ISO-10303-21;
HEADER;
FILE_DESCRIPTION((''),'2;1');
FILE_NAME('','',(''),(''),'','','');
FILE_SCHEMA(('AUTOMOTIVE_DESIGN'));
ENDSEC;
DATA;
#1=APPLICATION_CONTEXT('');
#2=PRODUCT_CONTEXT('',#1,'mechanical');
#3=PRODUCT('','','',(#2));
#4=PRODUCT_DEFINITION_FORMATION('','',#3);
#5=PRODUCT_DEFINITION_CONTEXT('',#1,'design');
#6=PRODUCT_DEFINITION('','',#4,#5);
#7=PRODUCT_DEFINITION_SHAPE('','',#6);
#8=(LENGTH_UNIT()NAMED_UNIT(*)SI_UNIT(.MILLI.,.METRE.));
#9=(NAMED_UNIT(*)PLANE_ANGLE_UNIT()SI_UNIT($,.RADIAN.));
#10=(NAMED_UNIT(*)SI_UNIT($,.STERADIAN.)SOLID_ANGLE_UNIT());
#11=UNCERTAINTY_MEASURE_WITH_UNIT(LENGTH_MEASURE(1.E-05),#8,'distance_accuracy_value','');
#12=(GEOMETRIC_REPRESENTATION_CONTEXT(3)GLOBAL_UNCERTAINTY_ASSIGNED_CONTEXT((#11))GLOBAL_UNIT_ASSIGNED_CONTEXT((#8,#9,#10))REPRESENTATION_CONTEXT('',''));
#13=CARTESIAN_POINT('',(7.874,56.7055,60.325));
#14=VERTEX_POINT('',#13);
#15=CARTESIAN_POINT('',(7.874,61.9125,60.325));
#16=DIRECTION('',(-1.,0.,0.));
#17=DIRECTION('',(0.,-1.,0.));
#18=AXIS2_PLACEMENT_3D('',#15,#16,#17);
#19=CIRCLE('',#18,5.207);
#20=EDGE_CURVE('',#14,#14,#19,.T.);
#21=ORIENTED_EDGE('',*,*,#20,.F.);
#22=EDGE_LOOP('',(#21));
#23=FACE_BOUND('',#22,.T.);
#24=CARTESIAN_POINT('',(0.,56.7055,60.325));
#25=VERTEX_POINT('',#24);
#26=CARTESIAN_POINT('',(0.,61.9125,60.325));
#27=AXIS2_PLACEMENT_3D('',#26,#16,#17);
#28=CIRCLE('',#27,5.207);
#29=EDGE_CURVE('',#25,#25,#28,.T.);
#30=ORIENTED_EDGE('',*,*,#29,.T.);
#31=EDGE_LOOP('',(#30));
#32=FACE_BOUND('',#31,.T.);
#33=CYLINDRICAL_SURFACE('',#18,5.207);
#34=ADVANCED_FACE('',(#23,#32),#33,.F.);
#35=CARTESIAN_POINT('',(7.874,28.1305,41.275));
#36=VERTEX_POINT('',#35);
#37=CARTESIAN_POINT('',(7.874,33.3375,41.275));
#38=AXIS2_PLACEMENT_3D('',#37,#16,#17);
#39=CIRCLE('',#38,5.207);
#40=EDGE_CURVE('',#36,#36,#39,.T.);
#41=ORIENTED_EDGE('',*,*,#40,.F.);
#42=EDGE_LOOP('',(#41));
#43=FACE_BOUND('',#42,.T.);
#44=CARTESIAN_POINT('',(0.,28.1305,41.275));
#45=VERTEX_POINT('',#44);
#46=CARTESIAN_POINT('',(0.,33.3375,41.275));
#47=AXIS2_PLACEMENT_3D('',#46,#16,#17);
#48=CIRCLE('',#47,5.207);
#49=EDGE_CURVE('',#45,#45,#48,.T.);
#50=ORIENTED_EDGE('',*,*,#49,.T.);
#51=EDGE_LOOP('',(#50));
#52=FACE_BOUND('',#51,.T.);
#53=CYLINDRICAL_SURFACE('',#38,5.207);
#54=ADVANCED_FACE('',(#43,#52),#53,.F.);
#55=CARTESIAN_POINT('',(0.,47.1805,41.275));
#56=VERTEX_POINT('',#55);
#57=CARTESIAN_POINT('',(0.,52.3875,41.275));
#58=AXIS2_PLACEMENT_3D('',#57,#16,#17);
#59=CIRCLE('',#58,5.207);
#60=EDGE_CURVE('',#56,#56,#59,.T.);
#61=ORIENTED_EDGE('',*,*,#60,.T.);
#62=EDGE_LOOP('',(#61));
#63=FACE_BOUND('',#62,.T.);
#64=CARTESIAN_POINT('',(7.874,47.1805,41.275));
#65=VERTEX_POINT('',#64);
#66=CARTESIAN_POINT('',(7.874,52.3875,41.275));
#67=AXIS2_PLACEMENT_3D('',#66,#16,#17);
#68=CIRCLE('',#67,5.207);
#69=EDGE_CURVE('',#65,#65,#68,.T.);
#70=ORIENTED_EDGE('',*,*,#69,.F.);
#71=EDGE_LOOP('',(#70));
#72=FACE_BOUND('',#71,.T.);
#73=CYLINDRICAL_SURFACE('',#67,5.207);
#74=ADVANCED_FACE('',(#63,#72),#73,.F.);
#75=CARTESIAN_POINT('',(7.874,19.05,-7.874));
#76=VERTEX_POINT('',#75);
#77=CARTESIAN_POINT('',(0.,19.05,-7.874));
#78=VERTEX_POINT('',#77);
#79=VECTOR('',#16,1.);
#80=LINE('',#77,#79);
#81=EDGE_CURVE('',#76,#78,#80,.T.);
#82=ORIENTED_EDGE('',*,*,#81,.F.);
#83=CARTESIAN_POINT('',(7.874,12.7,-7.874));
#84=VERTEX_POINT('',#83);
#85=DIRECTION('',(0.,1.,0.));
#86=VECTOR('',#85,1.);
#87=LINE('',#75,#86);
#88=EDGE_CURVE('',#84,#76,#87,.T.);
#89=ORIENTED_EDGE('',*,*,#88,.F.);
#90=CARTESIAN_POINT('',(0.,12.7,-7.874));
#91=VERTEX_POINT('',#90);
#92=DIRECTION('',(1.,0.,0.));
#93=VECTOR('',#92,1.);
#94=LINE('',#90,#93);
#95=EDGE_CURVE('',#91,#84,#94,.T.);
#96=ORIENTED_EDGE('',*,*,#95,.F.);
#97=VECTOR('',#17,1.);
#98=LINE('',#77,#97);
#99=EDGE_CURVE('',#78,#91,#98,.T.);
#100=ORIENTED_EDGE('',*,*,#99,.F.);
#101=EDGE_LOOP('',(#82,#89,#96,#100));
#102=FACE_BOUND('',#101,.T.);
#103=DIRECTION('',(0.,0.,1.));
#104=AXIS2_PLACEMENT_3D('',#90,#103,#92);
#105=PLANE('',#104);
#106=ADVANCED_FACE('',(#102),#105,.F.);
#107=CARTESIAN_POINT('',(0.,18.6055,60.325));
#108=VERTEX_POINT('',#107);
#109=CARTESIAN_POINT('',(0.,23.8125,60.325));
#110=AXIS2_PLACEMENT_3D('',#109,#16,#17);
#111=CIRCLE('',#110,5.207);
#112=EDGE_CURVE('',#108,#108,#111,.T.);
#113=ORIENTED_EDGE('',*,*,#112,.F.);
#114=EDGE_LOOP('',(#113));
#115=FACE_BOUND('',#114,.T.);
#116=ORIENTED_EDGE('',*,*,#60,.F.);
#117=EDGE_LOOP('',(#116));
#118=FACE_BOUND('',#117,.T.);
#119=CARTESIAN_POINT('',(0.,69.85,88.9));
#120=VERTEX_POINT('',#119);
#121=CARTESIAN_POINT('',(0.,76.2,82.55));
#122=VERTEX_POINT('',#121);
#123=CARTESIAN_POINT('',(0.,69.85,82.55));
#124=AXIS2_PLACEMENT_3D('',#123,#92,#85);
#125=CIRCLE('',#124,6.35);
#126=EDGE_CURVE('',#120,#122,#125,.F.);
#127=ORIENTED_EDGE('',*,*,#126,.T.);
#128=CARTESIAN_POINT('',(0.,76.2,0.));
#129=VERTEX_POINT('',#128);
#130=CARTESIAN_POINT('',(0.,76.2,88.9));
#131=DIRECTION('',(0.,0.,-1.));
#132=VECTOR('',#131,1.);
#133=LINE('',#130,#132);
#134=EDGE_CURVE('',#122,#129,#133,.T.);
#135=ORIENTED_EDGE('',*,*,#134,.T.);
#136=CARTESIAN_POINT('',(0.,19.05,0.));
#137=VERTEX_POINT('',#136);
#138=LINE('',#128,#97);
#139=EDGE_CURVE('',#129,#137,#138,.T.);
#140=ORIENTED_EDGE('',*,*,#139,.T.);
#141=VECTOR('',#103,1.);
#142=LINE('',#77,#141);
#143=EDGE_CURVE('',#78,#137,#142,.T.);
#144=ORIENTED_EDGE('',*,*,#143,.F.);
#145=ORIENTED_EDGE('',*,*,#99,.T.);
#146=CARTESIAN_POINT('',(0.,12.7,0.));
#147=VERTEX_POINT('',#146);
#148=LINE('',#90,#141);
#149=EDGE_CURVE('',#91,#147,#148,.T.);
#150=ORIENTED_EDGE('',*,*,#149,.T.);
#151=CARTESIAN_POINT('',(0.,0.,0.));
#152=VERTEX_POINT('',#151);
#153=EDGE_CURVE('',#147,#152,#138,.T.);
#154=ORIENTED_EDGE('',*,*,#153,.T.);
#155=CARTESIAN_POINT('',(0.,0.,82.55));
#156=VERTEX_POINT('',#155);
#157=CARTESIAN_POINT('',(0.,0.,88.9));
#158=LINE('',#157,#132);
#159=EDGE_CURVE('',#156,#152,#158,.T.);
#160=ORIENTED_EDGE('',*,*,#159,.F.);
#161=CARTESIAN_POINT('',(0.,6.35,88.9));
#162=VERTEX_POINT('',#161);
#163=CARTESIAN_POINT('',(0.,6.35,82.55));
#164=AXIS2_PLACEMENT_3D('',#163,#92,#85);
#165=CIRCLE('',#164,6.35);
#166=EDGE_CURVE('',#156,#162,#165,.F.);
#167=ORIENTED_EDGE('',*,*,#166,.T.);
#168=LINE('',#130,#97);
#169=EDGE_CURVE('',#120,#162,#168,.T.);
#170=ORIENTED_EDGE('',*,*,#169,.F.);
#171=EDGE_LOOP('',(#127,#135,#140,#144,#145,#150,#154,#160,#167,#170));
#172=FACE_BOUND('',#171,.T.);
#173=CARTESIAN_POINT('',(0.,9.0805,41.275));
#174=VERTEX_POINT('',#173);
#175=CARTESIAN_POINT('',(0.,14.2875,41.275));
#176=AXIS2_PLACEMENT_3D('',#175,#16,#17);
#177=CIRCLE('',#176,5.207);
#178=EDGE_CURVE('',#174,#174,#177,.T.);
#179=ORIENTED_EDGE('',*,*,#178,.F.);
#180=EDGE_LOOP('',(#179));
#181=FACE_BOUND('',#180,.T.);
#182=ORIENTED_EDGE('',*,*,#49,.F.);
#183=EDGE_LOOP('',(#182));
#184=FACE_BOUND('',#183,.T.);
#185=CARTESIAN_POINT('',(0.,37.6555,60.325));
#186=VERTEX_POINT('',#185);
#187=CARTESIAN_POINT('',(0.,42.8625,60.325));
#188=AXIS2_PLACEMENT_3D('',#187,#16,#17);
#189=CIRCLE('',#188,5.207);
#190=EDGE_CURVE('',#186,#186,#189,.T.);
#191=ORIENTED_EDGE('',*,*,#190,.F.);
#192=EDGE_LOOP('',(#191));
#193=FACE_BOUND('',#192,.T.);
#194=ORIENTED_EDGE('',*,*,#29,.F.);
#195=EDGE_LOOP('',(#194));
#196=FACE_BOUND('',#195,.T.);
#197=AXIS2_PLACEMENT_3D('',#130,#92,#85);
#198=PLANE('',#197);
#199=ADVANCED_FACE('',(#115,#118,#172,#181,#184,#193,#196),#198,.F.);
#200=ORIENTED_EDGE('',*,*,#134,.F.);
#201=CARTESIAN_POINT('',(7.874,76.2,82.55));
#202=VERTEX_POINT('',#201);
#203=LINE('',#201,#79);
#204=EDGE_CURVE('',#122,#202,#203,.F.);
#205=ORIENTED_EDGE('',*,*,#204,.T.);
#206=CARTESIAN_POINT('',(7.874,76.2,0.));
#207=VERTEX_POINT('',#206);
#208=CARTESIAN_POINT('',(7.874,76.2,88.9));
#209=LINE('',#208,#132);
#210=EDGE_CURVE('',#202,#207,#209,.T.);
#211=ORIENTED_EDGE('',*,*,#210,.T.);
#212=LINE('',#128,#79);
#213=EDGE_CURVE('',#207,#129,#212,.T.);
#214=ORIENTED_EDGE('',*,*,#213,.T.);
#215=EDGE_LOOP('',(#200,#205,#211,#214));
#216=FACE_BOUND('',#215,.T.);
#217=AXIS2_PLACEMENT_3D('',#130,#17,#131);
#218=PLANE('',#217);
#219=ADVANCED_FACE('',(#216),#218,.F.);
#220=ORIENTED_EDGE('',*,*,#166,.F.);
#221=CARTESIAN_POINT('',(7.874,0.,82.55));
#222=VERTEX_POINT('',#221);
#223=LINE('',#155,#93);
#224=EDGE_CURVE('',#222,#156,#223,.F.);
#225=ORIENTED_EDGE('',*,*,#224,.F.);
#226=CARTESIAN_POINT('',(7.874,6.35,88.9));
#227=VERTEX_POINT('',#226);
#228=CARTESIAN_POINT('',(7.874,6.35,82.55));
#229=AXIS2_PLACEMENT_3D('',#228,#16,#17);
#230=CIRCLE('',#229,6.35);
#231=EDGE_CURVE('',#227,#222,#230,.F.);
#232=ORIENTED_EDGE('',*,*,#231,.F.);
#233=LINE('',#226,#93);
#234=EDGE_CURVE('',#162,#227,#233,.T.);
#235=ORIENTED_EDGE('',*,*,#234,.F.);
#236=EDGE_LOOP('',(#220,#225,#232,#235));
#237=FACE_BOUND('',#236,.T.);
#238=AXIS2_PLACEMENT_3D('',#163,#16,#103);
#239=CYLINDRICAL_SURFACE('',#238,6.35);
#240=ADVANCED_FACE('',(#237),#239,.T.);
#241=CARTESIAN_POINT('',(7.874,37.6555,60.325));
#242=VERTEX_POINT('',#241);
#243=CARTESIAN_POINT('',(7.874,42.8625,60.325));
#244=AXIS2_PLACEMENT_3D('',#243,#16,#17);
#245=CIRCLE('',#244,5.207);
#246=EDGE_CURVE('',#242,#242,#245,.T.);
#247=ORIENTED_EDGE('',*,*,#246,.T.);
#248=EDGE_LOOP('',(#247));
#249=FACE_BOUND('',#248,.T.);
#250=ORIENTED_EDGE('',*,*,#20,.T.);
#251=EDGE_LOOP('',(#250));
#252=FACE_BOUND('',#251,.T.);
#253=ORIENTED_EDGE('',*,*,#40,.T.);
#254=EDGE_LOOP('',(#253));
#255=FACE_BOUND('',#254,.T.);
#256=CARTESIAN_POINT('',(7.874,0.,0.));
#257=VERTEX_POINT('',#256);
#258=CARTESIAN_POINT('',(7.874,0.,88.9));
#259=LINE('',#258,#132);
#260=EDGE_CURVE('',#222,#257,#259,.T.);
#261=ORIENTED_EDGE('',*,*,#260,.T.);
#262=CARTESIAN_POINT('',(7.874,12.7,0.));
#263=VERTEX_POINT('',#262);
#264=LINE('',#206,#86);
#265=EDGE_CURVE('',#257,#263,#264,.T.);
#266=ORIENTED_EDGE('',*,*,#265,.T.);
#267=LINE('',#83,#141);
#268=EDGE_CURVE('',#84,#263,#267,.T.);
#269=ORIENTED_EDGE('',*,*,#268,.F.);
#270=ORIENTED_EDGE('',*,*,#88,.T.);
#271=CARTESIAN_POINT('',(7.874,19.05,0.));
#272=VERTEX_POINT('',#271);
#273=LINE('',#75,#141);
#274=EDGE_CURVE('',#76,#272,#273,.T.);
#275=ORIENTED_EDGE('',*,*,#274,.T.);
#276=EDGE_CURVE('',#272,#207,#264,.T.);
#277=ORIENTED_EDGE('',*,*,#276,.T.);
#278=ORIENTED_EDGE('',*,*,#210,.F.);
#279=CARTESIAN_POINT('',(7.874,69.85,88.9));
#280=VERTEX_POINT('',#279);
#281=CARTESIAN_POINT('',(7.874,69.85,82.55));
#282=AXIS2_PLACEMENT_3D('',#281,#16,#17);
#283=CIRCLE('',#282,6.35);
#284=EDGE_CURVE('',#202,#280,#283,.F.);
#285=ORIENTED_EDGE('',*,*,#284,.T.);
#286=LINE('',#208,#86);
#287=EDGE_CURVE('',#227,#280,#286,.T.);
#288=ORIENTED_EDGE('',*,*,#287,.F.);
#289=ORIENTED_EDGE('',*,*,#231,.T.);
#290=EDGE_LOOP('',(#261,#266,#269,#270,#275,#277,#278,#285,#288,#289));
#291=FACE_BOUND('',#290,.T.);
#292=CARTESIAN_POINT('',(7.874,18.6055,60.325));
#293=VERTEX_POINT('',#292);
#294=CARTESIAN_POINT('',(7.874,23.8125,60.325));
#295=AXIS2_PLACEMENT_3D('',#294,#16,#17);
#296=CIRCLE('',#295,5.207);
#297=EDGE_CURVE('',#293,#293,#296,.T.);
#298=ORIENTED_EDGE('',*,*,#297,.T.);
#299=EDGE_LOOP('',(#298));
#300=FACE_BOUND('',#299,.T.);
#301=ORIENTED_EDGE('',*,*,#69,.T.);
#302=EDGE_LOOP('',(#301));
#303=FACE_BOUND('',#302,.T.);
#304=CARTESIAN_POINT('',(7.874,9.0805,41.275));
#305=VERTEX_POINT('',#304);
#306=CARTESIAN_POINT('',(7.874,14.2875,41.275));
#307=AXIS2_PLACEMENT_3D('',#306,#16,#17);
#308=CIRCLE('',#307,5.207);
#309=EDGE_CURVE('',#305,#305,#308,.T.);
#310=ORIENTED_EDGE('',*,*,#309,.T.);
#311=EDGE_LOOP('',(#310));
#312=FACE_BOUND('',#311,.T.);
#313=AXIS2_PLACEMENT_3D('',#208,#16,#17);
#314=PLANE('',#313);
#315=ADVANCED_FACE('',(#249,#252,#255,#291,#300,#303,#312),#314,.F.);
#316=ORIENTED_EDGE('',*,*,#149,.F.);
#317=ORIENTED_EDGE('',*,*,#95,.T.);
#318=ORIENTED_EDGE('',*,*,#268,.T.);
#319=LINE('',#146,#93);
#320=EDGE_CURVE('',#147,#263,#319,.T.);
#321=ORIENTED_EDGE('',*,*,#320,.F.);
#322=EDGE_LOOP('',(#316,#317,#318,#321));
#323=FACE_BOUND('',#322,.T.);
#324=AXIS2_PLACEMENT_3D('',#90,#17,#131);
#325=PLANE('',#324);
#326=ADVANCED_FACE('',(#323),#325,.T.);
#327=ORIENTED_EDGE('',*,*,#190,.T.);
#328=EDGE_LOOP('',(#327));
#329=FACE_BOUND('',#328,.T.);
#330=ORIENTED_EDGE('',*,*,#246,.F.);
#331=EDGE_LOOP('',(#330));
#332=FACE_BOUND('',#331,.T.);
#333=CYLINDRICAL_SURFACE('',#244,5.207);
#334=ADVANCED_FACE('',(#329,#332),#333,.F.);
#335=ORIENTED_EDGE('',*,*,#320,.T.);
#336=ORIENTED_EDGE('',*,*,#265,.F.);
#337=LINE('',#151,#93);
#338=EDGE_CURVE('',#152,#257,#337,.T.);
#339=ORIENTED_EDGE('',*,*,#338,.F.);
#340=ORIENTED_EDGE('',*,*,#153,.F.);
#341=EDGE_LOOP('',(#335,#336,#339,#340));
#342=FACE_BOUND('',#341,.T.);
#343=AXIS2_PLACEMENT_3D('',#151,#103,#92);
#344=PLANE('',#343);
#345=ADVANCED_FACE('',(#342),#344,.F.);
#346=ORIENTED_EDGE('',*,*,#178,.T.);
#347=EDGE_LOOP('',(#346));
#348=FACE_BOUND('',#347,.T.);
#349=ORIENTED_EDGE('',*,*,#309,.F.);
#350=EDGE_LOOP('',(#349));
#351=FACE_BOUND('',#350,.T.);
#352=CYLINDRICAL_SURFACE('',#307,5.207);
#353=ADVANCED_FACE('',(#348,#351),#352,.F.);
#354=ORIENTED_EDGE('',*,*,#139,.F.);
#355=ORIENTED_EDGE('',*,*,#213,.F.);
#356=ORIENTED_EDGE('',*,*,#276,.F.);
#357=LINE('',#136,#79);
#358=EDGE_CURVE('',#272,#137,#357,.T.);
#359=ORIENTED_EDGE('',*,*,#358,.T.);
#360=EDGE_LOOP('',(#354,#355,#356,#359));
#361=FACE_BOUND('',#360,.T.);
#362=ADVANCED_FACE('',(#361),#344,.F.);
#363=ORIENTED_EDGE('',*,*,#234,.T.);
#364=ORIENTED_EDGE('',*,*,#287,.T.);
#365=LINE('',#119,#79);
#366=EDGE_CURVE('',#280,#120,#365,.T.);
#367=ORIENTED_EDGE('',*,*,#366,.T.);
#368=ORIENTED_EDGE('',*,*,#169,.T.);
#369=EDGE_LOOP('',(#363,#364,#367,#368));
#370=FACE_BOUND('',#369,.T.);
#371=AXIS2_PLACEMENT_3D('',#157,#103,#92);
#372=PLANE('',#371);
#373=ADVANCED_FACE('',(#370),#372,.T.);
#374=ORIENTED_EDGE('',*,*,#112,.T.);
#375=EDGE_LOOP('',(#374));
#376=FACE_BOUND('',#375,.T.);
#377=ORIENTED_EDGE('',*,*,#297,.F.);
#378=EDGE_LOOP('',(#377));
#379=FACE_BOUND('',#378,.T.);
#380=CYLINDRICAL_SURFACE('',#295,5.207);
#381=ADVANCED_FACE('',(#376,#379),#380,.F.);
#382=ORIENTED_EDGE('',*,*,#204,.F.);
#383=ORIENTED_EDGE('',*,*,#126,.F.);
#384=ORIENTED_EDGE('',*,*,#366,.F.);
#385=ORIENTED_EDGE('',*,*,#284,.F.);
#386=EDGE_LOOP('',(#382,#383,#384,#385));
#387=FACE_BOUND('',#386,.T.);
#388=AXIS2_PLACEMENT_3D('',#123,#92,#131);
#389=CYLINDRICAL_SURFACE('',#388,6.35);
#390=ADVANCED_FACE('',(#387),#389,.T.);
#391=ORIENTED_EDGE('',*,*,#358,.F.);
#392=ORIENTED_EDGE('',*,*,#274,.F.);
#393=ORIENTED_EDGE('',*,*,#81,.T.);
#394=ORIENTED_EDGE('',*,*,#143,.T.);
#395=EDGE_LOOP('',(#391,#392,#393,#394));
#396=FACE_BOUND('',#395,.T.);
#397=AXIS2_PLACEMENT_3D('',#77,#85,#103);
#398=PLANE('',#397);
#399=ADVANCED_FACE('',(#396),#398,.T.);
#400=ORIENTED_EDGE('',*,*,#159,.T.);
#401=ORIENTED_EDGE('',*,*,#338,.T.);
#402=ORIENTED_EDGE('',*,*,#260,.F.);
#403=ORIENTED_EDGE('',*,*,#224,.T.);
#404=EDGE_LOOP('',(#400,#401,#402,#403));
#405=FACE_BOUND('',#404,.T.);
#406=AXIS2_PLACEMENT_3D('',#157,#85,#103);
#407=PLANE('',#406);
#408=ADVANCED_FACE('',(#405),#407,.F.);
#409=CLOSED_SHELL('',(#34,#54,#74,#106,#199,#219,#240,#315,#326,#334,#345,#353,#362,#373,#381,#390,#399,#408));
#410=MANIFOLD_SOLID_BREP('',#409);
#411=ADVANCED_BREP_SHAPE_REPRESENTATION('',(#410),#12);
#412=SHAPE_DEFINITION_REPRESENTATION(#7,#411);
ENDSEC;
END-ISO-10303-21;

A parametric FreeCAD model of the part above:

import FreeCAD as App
import Part
import Sketcher

V = App.Vector
Q = App.Units.Quantity


def edges_at(feature, points):
    """Names of the edges that pass closest to the given points."""
    edges = feature.Shape.Edges
    near = lambda p: min(range(len(edges)), key=lambda i: edges[i].distToShape(Part.Vertex(*p))[0])
    return sorted({f"Edge{near(p) + 1}" for p in points})

doc = App.newDocument("Part")
params = doc.addObject("Spreadsheet::Sheet", "Params")
for row, (alias, value) in enumerate([
    ("sketch1_height", "3 in"),
    ("sketch1_width", "0.31 in"),
    ("pad1_length", "3.5 in"),
    ("sketch2_diameter", "0.41 in"),
    ("fillet_radius", "0.25 in"),
    ("sketch3_width", "0.31 in"),
    ("sketch3_height", "0.25 in"),
    ("pad2_length", "0.31 in"),
], start=1):
    params.set(f"A{row}", alias)
    params.set(f"B{row}", "=" + value)
    params.setAlias(f"B{row}", alias)

body = doc.addObject("PartDesign::Body", "Body")

sketch1 = doc.addObject("Sketcher::SketchObject", "Sketch")
body.addObject(sketch1)
sketch1.AttachmentSupport = (doc.XY_Plane, [""])
sketch1.MapMode = "FlatFace"
sketch1.addGeometry([
    Part.LineSegment(V(0, 76.2, 0), V(0, 0, 0)),
    Part.LineSegment(V(0, 0, 0), V(7.874, 0, 0)),
    Part.LineSegment(V(7.874, 0, 0), V(7.874, 76.2, 0)),
    Part.LineSegment(V(7.874, 76.2, 0), V(0, 76.2, 0)),
], False)
sketch1.addConstraint([
    Sketcher.Constraint("Coincident", 0, 2, 1, 1),
    Sketcher.Constraint("Coincident", 1, 2, 2, 1),
    Sketcher.Constraint("Coincident", 2, 2, 3, 1),
    Sketcher.Constraint("Coincident", 3, 2, 0, 1),
    Sketcher.Constraint("Vertical", 0),
    Sketcher.Constraint("Horizontal", 1),
    Sketcher.Constraint("Vertical", 2),
    Sketcher.Constraint("Horizontal", 3),
    Sketcher.Constraint("Coincident", 0, 2, -1, 1),
    Sketcher.Constraint("DistanceY", 0, 2, 0, 1, Q("3 in")),
    Sketcher.Constraint("DistanceX", 1, 1, 1, 2, Q("0.31 in")),
])
sketch1.setExpression("Constraints[9]", "Params.sketch1_height")
sketch1.setExpression("Constraints[10]", "Params.sketch1_width")
pad1 = doc.addObject("PartDesign::Pad", "Pad")
body.addObject(pad1)
pad1.Profile = sketch1
pad1.setExpression("Length", "Params.pad1_length")

sketch2 = doc.addObject("Sketcher::SketchObject", "Sketch001")
body.addObject(sketch2)
sketch2.AttachmentSupport = (doc.YZ_Plane, [""])
sketch2.MapMode = "FlatFace"
sketch2.addGeometry([
    Part.Circle(V(23.8125, 60.325, 0), V(0, 0, 1), 5.207),
    Part.Circle(V(42.8625, 60.325, 0), V(0, 0, 1), 5.207),
    Part.Circle(V(61.9125, 60.325, 0), V(0, 0, 1), 5.207),
    Part.Circle(V(33.3375, 41.275, 0), V(0, 0, 1), 5.207),
    Part.Circle(V(52.3875, 41.275, 0), V(0, 0, 1), 5.207),
    Part.Circle(V(14.2875, 41.275, 0), V(0, 0, 1), 5.207),
], False)
sketch2.addConstraint([
    Sketcher.Constraint("Equal", 0, 1),
    Sketcher.Constraint("Equal", 1, 2),
    Sketcher.Constraint("Equal", 2, 3),
    Sketcher.Constraint("Equal", 3, 4),
    Sketcher.Constraint("Equal", 4, 5),
    Sketcher.Constraint("Horizontal", 0, 3, 1, 3),
    Sketcher.Constraint("Horizontal", 1, 3, 2, 3),
    Sketcher.Constraint("Horizontal", 3, 3, 4, 3),
    Sketcher.Constraint("Horizontal", 4, 3, 5, 3),
    Sketcher.Constraint("Diameter", 0, Q("0.41 in")),
    Sketcher.Constraint("DistanceX", 0, 3, 2, 3, Q("1.5 in")),
    Sketcher.Constraint("DistanceX", 5, 3, 4, 3, Q("1.5 in")),
    Sketcher.Constraint("DistanceX", 0, 3, 1, 3, Q("0.75 in")),
    Sketcher.Constraint("DistanceY", 3, 3, 0, 3, Q("0.75 in")),
    Sketcher.Constraint("DistanceX", 3, 3, 4, 3, Q("0.75 in")),
    Sketcher.Constraint("DistanceX", -1, 1, 0, 3, Q("0.9375 in")),
    Sketcher.Constraint("DistanceY", -1, 1, 0, 3, Q("2.375 in")),
    Sketcher.Constraint("DistanceX", -1, 1, 3, 3, Q("1.3125 in")),
])
sketch2.setExpression("Constraints[9]", "Params.sketch2_diameter")
pocket1 = doc.addObject("PartDesign::Pocket", "Pocket")
body.addObject(pocket1)
pocket1.Profile = sketch2
pocket1.Type = "ThroughAll"
pocket1.Reversed = True
doc.recompute()

fillet = doc.addObject("PartDesign::Fillet", "Fillet")
body.addObject(fillet)
fillet.Base = (pocket1, edges_at(pocket1, [(3.937, 76.2, 88.9), (3.937, 0, 88.9)]))
fillet.setExpression("Radius", "Params.fillet_radius")

sketch3 = doc.addObject("Sketcher::SketchObject", "Sketch002")
body.addObject(sketch3)
sketch3.AttachmentSupport = (doc.XY_Plane, [""])
sketch3.MapMode = "FlatFace"
sketch3.addGeometry([
    Part.LineSegment(V(0, 19.05, 0), V(0, 12.7, 0)),
    Part.LineSegment(V(0, 12.7, 0), V(7.874, 12.7, 0)),
    Part.LineSegment(V(7.874, 12.7, 0), V(7.874, 19.05, 0)),
    Part.LineSegment(V(7.874, 19.05, 0), V(0, 19.05, 0)),
], False)
sketch3.addConstraint([
    Sketcher.Constraint("Coincident", 0, 2, 1, 1),
    Sketcher.Constraint("Coincident", 1, 2, 2, 1),
    Sketcher.Constraint("Coincident", 2, 2, 3, 1),
    Sketcher.Constraint("Coincident", 3, 2, 0, 1),
    Sketcher.Constraint("Vertical", 0),
    Sketcher.Constraint("Horizontal", 1),
    Sketcher.Constraint("Vertical", 2),
    Sketcher.Constraint("Horizontal", 3),
    Sketcher.Constraint("PointOnObject", 0, 2, -2),
    Sketcher.Constraint("DistanceX", 1, 1, 1, 2, Q("0.31 in")),
    Sketcher.Constraint("DistanceY", 0, 2, 0, 1, Q("0.25 in")),
    Sketcher.Constraint("DistanceY", -1, 1, 0, 2, Q("0.5 in")),
])
sketch3.setExpression("Constraints[9]", "Params.sketch3_width")
sketch3.setExpression("Constraints[10]", "Params.sketch3_height")
pad2 = doc.addObject("PartDesign::Pad", "Pad001")
body.addObject(pad2)
pad2.Profile = sketch3
pad2.setExpression("Length", "Params.pad2_length")
pad2.Reversed = True

doc.recompute()
